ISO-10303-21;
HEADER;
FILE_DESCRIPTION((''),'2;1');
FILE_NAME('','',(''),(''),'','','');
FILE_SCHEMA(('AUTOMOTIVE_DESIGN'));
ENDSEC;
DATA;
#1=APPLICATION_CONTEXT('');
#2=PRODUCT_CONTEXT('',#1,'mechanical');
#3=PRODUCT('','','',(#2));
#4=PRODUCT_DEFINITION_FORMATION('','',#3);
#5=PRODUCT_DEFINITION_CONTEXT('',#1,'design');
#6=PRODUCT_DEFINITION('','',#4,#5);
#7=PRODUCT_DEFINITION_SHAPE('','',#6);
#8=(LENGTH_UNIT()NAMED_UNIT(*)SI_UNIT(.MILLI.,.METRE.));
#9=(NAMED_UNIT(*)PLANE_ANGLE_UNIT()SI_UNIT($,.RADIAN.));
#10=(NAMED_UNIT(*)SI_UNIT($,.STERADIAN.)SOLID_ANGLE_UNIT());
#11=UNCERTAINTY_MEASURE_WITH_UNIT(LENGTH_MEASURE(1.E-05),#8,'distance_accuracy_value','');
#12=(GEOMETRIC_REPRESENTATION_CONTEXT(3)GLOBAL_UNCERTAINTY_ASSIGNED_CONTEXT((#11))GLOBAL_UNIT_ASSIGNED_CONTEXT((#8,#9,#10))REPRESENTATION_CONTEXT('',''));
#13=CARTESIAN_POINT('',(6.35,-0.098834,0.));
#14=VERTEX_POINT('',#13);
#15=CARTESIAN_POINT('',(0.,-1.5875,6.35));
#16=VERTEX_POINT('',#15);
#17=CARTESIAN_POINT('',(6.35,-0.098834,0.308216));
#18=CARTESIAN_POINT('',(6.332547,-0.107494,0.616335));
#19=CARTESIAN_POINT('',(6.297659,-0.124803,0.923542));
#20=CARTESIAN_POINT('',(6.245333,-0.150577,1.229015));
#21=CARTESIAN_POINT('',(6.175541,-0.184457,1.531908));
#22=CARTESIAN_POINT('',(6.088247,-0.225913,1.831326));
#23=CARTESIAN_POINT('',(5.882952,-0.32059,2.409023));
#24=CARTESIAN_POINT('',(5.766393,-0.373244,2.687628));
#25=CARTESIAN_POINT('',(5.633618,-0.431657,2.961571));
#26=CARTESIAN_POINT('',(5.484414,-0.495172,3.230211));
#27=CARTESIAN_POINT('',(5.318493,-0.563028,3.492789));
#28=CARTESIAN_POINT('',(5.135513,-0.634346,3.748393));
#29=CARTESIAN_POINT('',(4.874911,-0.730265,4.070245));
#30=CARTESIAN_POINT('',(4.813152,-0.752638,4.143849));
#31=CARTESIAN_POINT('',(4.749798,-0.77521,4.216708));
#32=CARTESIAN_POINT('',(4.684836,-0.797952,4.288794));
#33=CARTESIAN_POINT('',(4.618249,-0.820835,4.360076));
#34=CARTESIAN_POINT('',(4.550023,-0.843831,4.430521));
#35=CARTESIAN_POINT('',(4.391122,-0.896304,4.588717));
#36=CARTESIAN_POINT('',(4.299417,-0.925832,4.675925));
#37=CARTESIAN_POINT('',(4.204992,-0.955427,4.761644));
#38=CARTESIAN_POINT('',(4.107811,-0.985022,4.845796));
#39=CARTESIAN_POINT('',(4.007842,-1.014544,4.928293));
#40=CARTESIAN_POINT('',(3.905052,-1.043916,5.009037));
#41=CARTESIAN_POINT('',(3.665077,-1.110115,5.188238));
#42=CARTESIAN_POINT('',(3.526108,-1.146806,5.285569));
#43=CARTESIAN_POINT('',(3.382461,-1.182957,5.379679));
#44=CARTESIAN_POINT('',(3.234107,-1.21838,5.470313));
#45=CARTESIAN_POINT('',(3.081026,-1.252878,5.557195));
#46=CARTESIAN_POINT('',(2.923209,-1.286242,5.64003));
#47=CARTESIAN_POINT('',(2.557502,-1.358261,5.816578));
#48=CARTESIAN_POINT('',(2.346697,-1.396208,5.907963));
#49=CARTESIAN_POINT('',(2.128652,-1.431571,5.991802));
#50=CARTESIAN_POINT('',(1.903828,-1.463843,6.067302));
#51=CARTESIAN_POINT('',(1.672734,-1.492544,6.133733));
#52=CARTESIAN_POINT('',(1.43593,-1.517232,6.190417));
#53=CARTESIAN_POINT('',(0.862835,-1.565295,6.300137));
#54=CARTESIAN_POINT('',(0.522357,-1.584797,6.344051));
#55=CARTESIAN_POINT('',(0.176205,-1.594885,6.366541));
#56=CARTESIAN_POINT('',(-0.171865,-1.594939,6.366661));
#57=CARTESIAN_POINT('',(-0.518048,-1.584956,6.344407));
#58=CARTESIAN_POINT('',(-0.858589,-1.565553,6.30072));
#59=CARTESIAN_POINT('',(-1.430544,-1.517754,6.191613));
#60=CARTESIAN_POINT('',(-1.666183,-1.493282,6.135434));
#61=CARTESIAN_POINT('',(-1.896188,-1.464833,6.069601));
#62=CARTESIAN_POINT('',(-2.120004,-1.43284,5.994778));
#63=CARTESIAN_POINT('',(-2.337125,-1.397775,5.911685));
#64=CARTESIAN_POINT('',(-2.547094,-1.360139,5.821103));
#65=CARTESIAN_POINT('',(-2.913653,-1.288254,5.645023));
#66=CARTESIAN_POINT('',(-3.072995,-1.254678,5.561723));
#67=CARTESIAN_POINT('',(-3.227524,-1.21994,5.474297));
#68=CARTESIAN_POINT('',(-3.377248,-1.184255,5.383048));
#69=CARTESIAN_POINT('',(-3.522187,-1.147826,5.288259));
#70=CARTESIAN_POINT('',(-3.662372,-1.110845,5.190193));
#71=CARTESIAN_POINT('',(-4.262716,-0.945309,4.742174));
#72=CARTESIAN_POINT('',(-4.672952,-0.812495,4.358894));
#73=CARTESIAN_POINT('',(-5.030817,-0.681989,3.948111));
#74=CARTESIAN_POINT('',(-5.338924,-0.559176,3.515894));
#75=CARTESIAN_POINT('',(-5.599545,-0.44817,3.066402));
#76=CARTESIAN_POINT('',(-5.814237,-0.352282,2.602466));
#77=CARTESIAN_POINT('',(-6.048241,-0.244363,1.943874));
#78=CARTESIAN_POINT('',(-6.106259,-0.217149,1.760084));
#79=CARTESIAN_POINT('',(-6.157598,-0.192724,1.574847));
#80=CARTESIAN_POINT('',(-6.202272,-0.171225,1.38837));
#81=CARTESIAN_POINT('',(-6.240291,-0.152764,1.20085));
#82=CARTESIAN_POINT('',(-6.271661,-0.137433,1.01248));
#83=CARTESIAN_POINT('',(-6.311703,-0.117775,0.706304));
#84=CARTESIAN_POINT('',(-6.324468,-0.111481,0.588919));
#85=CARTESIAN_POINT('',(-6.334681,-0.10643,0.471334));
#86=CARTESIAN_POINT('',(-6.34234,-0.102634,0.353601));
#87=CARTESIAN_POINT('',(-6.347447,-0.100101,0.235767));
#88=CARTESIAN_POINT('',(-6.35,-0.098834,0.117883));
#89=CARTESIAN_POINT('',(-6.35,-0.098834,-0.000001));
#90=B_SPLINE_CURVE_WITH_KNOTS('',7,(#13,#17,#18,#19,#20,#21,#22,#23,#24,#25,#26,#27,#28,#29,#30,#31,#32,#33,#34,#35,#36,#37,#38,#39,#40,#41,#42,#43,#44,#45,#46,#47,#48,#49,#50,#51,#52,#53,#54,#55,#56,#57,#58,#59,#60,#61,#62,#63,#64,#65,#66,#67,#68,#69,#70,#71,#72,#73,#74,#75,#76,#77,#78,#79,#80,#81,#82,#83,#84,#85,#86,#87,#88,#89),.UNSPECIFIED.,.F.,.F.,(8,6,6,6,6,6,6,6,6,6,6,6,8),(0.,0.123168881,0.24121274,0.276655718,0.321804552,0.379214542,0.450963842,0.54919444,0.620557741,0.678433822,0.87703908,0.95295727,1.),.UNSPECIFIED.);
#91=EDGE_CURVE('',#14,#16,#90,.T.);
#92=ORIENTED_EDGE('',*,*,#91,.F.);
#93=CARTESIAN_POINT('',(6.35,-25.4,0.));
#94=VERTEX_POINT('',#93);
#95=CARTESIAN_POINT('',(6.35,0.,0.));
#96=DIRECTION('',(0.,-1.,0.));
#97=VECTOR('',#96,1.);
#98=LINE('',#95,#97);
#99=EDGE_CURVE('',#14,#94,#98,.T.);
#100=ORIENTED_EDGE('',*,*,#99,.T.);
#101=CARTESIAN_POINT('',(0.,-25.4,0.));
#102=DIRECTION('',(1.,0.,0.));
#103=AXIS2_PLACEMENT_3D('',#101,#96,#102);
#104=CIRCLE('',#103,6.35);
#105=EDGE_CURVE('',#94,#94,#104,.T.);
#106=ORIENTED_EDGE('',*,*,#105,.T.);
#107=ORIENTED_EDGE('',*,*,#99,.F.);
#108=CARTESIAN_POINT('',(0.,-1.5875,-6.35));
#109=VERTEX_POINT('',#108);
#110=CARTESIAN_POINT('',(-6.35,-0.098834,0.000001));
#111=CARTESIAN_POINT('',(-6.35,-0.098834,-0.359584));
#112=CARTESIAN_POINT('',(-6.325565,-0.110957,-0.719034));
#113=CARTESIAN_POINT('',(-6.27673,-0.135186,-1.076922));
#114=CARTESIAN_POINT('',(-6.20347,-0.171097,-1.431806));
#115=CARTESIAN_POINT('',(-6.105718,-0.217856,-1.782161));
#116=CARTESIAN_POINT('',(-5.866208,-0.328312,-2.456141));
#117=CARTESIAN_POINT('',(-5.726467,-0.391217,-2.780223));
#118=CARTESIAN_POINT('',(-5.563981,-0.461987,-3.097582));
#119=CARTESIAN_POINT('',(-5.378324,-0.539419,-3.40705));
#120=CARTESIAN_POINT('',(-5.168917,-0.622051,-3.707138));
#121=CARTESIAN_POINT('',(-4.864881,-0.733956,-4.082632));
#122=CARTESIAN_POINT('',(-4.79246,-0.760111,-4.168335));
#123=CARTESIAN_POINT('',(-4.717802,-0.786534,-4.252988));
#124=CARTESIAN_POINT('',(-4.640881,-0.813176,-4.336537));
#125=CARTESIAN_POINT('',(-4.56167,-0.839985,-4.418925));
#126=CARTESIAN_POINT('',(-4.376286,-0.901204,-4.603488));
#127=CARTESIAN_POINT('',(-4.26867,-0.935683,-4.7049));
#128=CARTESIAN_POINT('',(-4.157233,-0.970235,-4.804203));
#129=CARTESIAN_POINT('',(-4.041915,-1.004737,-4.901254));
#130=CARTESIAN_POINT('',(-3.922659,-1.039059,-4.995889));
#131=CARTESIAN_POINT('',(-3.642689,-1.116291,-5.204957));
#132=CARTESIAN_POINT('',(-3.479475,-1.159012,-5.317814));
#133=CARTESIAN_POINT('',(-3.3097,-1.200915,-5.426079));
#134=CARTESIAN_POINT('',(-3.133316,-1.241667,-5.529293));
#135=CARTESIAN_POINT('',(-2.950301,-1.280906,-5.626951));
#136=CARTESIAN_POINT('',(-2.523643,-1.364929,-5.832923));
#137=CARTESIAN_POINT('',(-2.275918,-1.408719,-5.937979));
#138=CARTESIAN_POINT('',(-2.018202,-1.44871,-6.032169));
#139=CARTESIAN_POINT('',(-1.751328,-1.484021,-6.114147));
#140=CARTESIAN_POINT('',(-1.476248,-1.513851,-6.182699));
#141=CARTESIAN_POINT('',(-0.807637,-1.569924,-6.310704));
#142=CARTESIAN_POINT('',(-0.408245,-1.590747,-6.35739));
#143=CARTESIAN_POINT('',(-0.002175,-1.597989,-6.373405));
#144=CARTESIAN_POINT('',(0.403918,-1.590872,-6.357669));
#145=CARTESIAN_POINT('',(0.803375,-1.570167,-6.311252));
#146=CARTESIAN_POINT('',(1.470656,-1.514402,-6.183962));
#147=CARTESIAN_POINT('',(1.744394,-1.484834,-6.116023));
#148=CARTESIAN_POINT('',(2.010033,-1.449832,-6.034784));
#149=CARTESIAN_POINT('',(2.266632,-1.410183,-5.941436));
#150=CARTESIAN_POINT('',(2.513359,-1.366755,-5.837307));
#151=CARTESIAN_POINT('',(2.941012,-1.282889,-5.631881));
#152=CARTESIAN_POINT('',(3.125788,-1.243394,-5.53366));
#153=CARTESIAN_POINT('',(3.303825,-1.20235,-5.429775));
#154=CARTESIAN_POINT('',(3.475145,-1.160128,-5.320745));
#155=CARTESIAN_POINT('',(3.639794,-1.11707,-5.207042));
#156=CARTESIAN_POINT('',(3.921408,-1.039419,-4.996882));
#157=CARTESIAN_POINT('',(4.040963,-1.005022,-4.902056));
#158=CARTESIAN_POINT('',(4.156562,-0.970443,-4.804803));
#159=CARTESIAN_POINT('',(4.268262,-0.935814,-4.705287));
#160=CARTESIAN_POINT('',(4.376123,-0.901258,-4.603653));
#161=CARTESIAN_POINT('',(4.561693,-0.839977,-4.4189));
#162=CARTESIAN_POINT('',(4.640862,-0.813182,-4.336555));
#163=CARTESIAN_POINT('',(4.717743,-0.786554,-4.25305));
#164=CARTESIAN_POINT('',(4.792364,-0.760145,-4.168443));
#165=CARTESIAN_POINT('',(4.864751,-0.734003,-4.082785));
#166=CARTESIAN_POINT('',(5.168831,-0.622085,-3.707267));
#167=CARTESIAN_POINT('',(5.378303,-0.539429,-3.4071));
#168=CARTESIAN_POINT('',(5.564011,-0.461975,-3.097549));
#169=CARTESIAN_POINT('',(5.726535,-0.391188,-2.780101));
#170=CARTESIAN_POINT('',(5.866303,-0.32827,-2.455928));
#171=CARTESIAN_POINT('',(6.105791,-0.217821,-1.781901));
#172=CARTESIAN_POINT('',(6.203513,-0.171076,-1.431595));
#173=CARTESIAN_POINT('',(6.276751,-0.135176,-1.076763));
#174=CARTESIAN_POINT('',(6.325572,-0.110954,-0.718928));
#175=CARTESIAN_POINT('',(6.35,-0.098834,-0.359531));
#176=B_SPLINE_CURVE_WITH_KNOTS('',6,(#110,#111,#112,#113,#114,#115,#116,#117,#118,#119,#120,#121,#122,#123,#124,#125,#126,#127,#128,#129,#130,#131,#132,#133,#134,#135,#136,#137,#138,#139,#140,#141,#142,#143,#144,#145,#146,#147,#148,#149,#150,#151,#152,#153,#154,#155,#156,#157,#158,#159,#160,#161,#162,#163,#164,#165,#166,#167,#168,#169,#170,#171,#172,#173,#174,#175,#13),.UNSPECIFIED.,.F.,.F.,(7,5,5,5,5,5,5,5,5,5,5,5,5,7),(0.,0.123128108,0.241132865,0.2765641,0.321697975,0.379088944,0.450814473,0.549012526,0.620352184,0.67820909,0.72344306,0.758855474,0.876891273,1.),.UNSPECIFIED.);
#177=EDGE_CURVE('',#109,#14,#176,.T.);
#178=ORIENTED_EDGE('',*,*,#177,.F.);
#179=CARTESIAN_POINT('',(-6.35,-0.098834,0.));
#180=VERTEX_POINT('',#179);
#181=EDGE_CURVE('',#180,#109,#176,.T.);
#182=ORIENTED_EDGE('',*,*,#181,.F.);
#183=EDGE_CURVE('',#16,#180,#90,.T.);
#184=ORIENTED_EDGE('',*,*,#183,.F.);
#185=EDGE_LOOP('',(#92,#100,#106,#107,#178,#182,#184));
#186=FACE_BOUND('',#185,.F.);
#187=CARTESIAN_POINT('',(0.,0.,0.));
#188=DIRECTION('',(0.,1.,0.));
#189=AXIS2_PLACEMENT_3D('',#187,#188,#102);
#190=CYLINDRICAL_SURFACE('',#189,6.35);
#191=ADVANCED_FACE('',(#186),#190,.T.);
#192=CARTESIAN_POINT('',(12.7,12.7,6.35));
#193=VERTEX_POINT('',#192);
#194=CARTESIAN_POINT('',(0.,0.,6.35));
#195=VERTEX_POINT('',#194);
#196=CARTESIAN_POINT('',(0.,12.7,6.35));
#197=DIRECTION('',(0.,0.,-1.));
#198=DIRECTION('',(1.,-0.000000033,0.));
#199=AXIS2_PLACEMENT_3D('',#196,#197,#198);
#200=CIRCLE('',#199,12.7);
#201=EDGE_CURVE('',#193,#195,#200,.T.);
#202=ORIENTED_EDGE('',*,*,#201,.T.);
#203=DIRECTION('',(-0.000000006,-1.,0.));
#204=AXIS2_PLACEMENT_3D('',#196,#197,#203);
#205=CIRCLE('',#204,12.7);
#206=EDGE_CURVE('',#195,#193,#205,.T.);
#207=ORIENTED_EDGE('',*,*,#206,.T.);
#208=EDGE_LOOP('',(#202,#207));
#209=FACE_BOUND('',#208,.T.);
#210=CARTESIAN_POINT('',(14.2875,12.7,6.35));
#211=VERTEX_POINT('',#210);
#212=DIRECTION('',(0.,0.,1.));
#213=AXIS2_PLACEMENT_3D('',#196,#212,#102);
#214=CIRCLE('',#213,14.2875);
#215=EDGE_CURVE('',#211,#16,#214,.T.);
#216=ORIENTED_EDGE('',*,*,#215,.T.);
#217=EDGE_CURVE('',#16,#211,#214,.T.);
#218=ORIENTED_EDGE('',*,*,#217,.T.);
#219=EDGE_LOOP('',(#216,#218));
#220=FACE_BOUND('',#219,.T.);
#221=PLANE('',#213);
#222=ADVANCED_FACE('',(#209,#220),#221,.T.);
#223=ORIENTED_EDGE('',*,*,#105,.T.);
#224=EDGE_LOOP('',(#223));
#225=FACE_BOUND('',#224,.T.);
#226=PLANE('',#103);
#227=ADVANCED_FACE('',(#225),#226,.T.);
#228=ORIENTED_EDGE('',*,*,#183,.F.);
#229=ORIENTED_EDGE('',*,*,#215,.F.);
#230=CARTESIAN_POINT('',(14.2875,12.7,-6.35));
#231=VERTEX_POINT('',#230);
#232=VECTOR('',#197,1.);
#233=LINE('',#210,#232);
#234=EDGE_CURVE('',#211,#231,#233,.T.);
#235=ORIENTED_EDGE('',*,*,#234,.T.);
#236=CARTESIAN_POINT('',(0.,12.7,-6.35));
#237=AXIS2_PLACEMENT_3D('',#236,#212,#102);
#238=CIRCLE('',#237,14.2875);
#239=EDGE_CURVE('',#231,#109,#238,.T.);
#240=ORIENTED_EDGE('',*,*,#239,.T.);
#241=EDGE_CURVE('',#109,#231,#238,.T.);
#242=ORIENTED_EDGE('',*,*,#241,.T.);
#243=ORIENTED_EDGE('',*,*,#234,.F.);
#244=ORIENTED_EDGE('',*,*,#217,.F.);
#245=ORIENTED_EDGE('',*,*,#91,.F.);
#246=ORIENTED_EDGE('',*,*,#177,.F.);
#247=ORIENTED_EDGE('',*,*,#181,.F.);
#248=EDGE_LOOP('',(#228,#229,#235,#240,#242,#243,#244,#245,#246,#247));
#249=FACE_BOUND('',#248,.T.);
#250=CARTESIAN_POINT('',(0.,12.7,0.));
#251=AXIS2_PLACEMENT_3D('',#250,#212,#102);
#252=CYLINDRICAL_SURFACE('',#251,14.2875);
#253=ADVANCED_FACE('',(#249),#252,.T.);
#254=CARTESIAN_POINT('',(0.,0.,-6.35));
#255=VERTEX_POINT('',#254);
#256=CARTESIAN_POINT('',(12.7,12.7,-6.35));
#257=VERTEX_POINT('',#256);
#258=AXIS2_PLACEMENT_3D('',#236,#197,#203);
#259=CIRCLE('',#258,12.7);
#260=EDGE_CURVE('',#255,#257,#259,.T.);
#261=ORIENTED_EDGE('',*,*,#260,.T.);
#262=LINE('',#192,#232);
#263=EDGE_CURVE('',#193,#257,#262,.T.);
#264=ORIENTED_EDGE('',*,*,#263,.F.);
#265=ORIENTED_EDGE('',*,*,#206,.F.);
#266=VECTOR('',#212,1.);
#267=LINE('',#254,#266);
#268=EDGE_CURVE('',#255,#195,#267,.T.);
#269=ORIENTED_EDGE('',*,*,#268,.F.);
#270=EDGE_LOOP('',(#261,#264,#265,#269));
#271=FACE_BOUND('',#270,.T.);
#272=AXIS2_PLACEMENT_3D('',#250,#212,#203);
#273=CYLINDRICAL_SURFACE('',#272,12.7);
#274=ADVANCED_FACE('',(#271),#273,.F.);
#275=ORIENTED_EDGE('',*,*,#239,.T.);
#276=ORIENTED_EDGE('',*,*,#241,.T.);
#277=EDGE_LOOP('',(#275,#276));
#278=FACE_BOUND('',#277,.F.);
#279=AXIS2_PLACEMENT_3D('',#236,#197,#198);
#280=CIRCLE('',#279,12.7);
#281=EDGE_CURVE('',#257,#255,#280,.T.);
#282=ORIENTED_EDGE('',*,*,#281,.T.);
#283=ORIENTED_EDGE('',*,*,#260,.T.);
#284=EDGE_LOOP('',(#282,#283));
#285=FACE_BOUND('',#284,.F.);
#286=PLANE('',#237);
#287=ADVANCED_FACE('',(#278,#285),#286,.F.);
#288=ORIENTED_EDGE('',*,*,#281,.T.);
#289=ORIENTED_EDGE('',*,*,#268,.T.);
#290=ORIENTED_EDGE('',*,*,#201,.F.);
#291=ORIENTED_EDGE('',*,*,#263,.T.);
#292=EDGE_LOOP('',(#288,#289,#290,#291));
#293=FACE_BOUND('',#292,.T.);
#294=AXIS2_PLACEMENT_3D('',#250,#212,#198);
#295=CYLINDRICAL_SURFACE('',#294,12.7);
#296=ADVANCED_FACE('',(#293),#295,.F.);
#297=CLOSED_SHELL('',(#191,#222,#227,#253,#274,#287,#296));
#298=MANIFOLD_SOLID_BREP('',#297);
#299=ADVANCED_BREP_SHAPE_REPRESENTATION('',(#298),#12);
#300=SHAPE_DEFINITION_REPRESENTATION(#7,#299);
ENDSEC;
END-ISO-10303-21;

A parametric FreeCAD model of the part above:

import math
import FreeCAD as App
import Part
import Sketcher
from FreeCAD import Vector
Q = App.Units.Quantity

doc = App.newDocument("Part")
body = doc.addObject("PartDesign::Body", "Body")

# Sketch on XZ plane
sketch1 = body.newObject("Sketcher::SketchObject", "Sketch")
sketch1.AttachmentSupport = (doc.getObject("XZ_Plane"), [""])
sketch1.MapMode = "FlatFace"
sketch1.addGeometry(Part.Circle(Vector(0, 0, 0), Vector(0, 0, 1), 6), False)
sketch1.addConstraint([
    Sketcher.Constraint("Coincident", 0, 3, -1, 1),
    Sketcher.Constraint("Diameter", 0, Q("0.5 in")),
])
pad1 = body.newObject("PartDesign::Pad", "Pad")
pad1.Profile = sketch1
pad1.Length = Q("1 in")

# Sketch on XY plane
sketch2 = body.newObject("Sketcher::SketchObject", "Sketch001")
sketch2.AttachmentSupport = (doc.getObject("XY_Plane"), [""])
sketch2.MapMode = "FlatFace"
sketch2.addGeometry([
    Part.Circle(Vector(0, 13, 0), Vector(0, 0, 1), 14),
    Part.ArcOfCircle(Part.Circle(Vector(0, 13, 0), Vector(0, 0, 1), 13), math.radians(-90), math.radians(0)),
    Part.ArcOfCircle(Part.Circle(Vector(0, 13, 0), Vector(0, 0, 1), 13), math.radians(0), math.radians(270)),
], False)
sketch2.addConstraint([
    Sketcher.Constraint("Tangent", 1, 1, 2, 2),
    Sketcher.Constraint("Coincident", 2, 1, 1, 2),
    Sketcher.Constraint("Coincident", 1, 1, -1, 1),
    Sketcher.Constraint("Coincident", 1, 3, 0, 3),
    Sketcher.Constraint("PointOnObject", 0, 3, -2),
    Sketcher.Constraint("Horizontal", 1, 3, 2, 1),
    Sketcher.Constraint("Radius", 1, Q("0.5 in")),
    Sketcher.Constraint("Diameter", 0, Q("1.125 in")),
])
pad2 = body.newObject("PartDesign::Pad", "Pad001")
pad2.Profile = sketch2
pad2.Type = "TwoLengths"
pad2.Length = Q("0.25 in")
pad2.Length2 = Q("0.25 in")

doc.recompute()
